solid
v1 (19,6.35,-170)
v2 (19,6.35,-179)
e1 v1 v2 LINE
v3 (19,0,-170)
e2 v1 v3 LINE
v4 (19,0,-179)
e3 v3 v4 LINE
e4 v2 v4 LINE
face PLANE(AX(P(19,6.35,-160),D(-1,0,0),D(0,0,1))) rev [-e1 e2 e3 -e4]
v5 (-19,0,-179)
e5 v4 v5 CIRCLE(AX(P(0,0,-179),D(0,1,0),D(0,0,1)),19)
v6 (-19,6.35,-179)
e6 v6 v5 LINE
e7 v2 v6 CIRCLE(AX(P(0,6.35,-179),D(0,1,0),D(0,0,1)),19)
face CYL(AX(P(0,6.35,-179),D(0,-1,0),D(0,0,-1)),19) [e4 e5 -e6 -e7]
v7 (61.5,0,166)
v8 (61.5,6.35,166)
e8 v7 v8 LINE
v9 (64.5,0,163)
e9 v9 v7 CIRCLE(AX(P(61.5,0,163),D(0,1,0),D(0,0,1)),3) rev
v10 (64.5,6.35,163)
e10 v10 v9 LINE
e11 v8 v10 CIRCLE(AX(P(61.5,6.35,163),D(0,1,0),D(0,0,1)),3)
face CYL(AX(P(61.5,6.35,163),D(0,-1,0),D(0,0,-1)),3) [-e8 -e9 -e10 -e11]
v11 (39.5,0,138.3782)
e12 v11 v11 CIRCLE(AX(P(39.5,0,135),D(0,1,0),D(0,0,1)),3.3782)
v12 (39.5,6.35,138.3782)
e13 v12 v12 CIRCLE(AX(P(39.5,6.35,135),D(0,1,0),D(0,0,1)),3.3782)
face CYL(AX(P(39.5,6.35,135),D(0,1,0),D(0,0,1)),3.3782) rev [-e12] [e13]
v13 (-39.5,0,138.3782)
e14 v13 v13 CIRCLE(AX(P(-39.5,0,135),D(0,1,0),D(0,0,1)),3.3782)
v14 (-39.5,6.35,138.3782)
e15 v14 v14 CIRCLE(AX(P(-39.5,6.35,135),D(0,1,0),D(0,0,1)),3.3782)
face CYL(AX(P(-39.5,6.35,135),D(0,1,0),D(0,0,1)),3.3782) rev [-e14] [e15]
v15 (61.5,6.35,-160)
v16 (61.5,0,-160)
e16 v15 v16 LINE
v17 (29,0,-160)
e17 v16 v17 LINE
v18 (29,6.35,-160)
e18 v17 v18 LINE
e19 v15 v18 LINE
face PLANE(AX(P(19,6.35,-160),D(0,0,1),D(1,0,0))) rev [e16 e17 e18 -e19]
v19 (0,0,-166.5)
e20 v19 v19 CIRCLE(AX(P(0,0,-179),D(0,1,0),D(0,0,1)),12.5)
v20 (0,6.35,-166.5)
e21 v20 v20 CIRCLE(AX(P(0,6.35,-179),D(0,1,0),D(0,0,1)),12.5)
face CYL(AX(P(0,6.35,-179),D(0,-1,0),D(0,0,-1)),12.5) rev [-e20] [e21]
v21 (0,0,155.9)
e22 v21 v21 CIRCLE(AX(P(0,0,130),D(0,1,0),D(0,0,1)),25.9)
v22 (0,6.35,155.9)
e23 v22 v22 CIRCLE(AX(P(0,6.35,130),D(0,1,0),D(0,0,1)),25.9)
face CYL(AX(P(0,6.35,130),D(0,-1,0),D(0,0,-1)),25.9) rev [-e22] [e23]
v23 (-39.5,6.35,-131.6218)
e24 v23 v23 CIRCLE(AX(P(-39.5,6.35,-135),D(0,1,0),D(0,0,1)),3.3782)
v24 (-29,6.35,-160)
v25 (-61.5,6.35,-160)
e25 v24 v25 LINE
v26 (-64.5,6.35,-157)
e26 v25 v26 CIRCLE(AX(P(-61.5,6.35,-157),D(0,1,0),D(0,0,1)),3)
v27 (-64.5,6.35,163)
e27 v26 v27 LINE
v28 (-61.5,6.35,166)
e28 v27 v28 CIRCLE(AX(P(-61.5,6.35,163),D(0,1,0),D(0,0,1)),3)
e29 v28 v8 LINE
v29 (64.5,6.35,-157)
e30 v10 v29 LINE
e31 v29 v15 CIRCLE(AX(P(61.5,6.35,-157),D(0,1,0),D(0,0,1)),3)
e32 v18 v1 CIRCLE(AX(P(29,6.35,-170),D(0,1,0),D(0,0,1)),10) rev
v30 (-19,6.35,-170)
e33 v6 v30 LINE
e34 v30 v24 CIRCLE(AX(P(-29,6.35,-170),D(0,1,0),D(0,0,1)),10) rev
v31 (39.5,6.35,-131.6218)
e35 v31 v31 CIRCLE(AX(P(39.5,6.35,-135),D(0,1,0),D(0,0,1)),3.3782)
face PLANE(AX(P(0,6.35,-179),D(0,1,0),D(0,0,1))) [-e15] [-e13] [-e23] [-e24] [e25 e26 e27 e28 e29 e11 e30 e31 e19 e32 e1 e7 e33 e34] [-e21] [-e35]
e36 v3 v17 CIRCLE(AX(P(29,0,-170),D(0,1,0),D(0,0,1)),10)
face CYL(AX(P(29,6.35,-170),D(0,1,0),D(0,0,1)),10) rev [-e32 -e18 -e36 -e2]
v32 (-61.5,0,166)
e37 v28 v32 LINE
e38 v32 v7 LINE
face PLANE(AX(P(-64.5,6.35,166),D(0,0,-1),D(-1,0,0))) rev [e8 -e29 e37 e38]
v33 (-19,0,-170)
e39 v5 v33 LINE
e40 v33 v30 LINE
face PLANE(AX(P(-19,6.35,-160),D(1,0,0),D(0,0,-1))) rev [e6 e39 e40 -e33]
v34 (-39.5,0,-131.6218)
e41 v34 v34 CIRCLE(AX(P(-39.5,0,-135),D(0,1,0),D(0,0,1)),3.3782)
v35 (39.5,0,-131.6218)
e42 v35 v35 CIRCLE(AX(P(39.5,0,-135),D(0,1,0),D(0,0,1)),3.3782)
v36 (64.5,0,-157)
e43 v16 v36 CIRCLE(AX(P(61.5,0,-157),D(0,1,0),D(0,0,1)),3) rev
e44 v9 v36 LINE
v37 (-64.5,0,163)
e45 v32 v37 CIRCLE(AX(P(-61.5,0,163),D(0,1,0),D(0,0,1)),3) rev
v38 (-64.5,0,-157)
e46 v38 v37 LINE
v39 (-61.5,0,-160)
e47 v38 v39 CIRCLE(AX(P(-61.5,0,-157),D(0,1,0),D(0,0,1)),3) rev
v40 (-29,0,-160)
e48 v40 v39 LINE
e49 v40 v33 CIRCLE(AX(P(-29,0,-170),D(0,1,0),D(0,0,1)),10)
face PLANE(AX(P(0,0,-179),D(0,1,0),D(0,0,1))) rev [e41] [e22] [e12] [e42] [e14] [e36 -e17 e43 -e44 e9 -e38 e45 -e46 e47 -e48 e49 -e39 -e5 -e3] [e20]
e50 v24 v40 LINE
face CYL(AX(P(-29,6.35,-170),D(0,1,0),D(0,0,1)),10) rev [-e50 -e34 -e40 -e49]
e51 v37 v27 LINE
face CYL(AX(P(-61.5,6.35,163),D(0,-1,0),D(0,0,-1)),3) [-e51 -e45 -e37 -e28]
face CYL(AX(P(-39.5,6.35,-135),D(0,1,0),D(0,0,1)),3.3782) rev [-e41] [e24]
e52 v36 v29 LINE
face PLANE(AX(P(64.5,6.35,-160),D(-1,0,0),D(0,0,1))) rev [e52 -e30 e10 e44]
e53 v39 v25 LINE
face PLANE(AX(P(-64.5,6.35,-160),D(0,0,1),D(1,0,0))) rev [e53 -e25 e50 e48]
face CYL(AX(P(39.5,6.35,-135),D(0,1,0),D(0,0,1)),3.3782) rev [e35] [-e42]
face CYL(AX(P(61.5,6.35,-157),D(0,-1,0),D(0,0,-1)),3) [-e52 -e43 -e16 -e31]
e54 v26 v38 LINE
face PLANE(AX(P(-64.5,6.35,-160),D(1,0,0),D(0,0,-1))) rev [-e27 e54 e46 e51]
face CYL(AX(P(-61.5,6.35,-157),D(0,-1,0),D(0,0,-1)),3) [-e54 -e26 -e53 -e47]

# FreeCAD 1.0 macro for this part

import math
import FreeCAD as App
import Part
import Sketcher
from FreeCAD import Vector


def edges_at(feature, points):
    """Names of the edges that pass closest to the given points."""
    edges = feature.Shape.Edges
    near = lambda p: min(range(len(edges)), key=lambda i: edges[i].distToShape(Part.Vertex(*p))[0])
    return sorted({f"Edge{near(p) + 1}" for p in points})

doc = App.newDocument("Part")
body = doc.addObject("PartDesign::Body", "Body")

# Sketch on XZ plane
sketch1 = body.newObject("Sketcher::SketchObject", "Sketch")
sketch1.AttachmentSupport = (doc.getObject("XZ_Plane"), [""])
sketch1.MapMode = "FlatFace"
sketch1.addGeometry([
    Part.LineSegment(Vector(-19, -160, 0), Vector(-64, -160, 0)),  # 0
    Part.LineSegment(Vector(-64, -160, 0), Vector(-64, 166, 0)),  # 1
    Part.LineSegment(Vector(-64, 166, 0), Vector(64, 166, 0)),  # 2
    Part.LineSegment(Vector(64, 166, 0), Vector(64, -160, 0)),  # 3
    Part.LineSegment(Vector(64, -160, 0), Vector(19, -160, 0)),  # 4
    Part.LineSegment(Vector(19, -160, 0), Vector(19, -179, 0)),  # 5
    Part.ArcOfCircle(Part.Circle(Vector(0, -179, 0), Vector(0, 0, 1), 19), math.radians(180), math.radians(360)),  # 6
    Part.LineSegment(Vector(-19, -179, 0), Vector(-19, -160, 0)),  # 7
    Part.Circle(Vector(0, 130, 0), Vector(0, 0, 1), 26),  # 8
    Part.Circle(Vector(0, -179, 0), Vector(0, 0, 1), 12),  # 9
], False)
sketch1.addConstraint([
    Sketcher.Constraint("Coincident", 0, 2, 1, 1),
    Sketcher.Constraint("Coincident", 1, 2, 2, 1),
    Sketcher.Constraint("Coincident", 2, 2, 3, 1),
    Sketcher.Constraint("Coincident", 3, 2, 4, 1),
    Sketcher.Constraint("Coincident", 4, 2, 5, 1),
    Sketcher.Constraint("Tangent", 5, 2, 6, 2),
    Sketcher.Constraint("Tangent", 6, 1, 7, 1),
    Sketcher.Constraint("Coincident", 7, 2, 0, 1),
    Sketcher.Constraint("Horizontal", 0),
    Sketcher.Constraint("Vertical", 1),
    Sketcher.Constraint("Horizontal", 2),
    Sketcher.Constraint("Vertical", 3),
    Sketcher.Constraint("Horizontal", 4),
    Sketcher.Constraint("Vertical", 5),
    Sketcher.Constraint("Vertical", 7),
    Sketcher.Constraint("Coincident", 9, 3, 6, 3),
    Sketcher.Constraint("Symmetric", 0, 2, 3, 2, -2),
    Sketcher.Constraint("PointOnObject", 6, 3, -2),
    Sketcher.Constraint("PointOnObject", 8, 3, -2),
    Sketcher.Constraint("Diameter", 9, 25.0),
    Sketcher.Constraint("Radius", 6, 19.0),
    Sketcher.Constraint("Diameter", 8, 51.8),
    Sketcher.Constraint("DistanceX", 2, 1, 2, 2, 129.0),
    Sketcher.Constraint("DistanceY", 1, 1, 1, 2, 326.0),
    Sketcher.Constraint("DistanceY", 5, 2, 5, 1, 19.0),
    Sketcher.Constraint("DistanceY", 6, 3, -1, 1, 179.0),
    Sketcher.Constraint("DistanceY", -1, 1, 8, 3, 130.0),
])
pad1 = body.newObject("PartDesign::Pad", "Pad")
pad1.Profile = sketch1
pad1.Length = 6.35
pad1.Reversed = True

# Sketch on XZ plane
sketch2 = body.newObject("Sketcher::SketchObject", "Sketch001")
sketch2.AttachmentSupport = (doc.getObject("XZ_Plane"), [""])
sketch2.MapMode = "FlatFace"
sketch2.AttachmentOffset = App.Placement(Vector(0, 0, -6.35), App.Rotation())
sketch2.addGeometry([
    Part.Circle(Vector(-39.5, -135, 0), Vector(0, 0, 1), 3.4),
    Part.Circle(Vector(39.5, -135, 0), Vector(0, 0, 1), 3.4),
    Part.Circle(Vector(39.5, 135, 0), Vector(0, 0, 1), 3.4),
    Part.Circle(Vector(-39.5, 135, 0), Vector(0, 0, 1), 3.4),
], False)
sketch2.addConstraint([
    Sketcher.Constraint("Equal", 0, 1),
    Sketcher.Constraint("Equal", 1, 2),
    Sketcher.Constraint("Equal", 2, 3),
    Sketcher.Constraint("Symmetric", 0, 3, 2, 3, -1, 1),
    Sketcher.Constraint("Symmetric", 1, 3, 3, 3, -1, 1),
    Sketcher.Constraint("Symmetric", 0, 3, 1, 3, -2),
    Sketcher.Constraint("DistanceY", 0, 3, -1, 1, 135.0),
    Sketcher.Constraint("DistanceX", 0, 3, 1, 3, 79.0),
    Sketcher.Constraint("Diameter", 0, 6.7564),
])
doc.recompute()
hole = body.newObject("PartDesign::Hole", "Hole")
hole.Profile = sketch2
hole.ThreadType = "None"
hole.Diameter = 6.7564
hole.DepthType = "Dimension"
hole.Depth = 19.53
hole.DrillPoint = "Angled"
hole.DrillPointAngle = 118
hole.Reversed = True
doc.recompute()

fillet = body.newObject("PartDesign::Fillet", "Fillet")
fillet.Base = (hole, edges_at(hole, [(-19, 3.175, -160), (19, 3.175, -160)]))
fillet.Radius = 10
doc.recompute()

fillet2 = body.newObject("PartDesign::Fillet", "Fillet001")
fillet2.Base = (fillet, edges_at(fillet, [
    (64.5, 3.175, 166),
    (-64.5, 3.175, 166),
    (-64.5, 3.175, -160),
    (64.5, 3.175, -160),
]))
fillet2.Radius = 3

doc.recompute()
